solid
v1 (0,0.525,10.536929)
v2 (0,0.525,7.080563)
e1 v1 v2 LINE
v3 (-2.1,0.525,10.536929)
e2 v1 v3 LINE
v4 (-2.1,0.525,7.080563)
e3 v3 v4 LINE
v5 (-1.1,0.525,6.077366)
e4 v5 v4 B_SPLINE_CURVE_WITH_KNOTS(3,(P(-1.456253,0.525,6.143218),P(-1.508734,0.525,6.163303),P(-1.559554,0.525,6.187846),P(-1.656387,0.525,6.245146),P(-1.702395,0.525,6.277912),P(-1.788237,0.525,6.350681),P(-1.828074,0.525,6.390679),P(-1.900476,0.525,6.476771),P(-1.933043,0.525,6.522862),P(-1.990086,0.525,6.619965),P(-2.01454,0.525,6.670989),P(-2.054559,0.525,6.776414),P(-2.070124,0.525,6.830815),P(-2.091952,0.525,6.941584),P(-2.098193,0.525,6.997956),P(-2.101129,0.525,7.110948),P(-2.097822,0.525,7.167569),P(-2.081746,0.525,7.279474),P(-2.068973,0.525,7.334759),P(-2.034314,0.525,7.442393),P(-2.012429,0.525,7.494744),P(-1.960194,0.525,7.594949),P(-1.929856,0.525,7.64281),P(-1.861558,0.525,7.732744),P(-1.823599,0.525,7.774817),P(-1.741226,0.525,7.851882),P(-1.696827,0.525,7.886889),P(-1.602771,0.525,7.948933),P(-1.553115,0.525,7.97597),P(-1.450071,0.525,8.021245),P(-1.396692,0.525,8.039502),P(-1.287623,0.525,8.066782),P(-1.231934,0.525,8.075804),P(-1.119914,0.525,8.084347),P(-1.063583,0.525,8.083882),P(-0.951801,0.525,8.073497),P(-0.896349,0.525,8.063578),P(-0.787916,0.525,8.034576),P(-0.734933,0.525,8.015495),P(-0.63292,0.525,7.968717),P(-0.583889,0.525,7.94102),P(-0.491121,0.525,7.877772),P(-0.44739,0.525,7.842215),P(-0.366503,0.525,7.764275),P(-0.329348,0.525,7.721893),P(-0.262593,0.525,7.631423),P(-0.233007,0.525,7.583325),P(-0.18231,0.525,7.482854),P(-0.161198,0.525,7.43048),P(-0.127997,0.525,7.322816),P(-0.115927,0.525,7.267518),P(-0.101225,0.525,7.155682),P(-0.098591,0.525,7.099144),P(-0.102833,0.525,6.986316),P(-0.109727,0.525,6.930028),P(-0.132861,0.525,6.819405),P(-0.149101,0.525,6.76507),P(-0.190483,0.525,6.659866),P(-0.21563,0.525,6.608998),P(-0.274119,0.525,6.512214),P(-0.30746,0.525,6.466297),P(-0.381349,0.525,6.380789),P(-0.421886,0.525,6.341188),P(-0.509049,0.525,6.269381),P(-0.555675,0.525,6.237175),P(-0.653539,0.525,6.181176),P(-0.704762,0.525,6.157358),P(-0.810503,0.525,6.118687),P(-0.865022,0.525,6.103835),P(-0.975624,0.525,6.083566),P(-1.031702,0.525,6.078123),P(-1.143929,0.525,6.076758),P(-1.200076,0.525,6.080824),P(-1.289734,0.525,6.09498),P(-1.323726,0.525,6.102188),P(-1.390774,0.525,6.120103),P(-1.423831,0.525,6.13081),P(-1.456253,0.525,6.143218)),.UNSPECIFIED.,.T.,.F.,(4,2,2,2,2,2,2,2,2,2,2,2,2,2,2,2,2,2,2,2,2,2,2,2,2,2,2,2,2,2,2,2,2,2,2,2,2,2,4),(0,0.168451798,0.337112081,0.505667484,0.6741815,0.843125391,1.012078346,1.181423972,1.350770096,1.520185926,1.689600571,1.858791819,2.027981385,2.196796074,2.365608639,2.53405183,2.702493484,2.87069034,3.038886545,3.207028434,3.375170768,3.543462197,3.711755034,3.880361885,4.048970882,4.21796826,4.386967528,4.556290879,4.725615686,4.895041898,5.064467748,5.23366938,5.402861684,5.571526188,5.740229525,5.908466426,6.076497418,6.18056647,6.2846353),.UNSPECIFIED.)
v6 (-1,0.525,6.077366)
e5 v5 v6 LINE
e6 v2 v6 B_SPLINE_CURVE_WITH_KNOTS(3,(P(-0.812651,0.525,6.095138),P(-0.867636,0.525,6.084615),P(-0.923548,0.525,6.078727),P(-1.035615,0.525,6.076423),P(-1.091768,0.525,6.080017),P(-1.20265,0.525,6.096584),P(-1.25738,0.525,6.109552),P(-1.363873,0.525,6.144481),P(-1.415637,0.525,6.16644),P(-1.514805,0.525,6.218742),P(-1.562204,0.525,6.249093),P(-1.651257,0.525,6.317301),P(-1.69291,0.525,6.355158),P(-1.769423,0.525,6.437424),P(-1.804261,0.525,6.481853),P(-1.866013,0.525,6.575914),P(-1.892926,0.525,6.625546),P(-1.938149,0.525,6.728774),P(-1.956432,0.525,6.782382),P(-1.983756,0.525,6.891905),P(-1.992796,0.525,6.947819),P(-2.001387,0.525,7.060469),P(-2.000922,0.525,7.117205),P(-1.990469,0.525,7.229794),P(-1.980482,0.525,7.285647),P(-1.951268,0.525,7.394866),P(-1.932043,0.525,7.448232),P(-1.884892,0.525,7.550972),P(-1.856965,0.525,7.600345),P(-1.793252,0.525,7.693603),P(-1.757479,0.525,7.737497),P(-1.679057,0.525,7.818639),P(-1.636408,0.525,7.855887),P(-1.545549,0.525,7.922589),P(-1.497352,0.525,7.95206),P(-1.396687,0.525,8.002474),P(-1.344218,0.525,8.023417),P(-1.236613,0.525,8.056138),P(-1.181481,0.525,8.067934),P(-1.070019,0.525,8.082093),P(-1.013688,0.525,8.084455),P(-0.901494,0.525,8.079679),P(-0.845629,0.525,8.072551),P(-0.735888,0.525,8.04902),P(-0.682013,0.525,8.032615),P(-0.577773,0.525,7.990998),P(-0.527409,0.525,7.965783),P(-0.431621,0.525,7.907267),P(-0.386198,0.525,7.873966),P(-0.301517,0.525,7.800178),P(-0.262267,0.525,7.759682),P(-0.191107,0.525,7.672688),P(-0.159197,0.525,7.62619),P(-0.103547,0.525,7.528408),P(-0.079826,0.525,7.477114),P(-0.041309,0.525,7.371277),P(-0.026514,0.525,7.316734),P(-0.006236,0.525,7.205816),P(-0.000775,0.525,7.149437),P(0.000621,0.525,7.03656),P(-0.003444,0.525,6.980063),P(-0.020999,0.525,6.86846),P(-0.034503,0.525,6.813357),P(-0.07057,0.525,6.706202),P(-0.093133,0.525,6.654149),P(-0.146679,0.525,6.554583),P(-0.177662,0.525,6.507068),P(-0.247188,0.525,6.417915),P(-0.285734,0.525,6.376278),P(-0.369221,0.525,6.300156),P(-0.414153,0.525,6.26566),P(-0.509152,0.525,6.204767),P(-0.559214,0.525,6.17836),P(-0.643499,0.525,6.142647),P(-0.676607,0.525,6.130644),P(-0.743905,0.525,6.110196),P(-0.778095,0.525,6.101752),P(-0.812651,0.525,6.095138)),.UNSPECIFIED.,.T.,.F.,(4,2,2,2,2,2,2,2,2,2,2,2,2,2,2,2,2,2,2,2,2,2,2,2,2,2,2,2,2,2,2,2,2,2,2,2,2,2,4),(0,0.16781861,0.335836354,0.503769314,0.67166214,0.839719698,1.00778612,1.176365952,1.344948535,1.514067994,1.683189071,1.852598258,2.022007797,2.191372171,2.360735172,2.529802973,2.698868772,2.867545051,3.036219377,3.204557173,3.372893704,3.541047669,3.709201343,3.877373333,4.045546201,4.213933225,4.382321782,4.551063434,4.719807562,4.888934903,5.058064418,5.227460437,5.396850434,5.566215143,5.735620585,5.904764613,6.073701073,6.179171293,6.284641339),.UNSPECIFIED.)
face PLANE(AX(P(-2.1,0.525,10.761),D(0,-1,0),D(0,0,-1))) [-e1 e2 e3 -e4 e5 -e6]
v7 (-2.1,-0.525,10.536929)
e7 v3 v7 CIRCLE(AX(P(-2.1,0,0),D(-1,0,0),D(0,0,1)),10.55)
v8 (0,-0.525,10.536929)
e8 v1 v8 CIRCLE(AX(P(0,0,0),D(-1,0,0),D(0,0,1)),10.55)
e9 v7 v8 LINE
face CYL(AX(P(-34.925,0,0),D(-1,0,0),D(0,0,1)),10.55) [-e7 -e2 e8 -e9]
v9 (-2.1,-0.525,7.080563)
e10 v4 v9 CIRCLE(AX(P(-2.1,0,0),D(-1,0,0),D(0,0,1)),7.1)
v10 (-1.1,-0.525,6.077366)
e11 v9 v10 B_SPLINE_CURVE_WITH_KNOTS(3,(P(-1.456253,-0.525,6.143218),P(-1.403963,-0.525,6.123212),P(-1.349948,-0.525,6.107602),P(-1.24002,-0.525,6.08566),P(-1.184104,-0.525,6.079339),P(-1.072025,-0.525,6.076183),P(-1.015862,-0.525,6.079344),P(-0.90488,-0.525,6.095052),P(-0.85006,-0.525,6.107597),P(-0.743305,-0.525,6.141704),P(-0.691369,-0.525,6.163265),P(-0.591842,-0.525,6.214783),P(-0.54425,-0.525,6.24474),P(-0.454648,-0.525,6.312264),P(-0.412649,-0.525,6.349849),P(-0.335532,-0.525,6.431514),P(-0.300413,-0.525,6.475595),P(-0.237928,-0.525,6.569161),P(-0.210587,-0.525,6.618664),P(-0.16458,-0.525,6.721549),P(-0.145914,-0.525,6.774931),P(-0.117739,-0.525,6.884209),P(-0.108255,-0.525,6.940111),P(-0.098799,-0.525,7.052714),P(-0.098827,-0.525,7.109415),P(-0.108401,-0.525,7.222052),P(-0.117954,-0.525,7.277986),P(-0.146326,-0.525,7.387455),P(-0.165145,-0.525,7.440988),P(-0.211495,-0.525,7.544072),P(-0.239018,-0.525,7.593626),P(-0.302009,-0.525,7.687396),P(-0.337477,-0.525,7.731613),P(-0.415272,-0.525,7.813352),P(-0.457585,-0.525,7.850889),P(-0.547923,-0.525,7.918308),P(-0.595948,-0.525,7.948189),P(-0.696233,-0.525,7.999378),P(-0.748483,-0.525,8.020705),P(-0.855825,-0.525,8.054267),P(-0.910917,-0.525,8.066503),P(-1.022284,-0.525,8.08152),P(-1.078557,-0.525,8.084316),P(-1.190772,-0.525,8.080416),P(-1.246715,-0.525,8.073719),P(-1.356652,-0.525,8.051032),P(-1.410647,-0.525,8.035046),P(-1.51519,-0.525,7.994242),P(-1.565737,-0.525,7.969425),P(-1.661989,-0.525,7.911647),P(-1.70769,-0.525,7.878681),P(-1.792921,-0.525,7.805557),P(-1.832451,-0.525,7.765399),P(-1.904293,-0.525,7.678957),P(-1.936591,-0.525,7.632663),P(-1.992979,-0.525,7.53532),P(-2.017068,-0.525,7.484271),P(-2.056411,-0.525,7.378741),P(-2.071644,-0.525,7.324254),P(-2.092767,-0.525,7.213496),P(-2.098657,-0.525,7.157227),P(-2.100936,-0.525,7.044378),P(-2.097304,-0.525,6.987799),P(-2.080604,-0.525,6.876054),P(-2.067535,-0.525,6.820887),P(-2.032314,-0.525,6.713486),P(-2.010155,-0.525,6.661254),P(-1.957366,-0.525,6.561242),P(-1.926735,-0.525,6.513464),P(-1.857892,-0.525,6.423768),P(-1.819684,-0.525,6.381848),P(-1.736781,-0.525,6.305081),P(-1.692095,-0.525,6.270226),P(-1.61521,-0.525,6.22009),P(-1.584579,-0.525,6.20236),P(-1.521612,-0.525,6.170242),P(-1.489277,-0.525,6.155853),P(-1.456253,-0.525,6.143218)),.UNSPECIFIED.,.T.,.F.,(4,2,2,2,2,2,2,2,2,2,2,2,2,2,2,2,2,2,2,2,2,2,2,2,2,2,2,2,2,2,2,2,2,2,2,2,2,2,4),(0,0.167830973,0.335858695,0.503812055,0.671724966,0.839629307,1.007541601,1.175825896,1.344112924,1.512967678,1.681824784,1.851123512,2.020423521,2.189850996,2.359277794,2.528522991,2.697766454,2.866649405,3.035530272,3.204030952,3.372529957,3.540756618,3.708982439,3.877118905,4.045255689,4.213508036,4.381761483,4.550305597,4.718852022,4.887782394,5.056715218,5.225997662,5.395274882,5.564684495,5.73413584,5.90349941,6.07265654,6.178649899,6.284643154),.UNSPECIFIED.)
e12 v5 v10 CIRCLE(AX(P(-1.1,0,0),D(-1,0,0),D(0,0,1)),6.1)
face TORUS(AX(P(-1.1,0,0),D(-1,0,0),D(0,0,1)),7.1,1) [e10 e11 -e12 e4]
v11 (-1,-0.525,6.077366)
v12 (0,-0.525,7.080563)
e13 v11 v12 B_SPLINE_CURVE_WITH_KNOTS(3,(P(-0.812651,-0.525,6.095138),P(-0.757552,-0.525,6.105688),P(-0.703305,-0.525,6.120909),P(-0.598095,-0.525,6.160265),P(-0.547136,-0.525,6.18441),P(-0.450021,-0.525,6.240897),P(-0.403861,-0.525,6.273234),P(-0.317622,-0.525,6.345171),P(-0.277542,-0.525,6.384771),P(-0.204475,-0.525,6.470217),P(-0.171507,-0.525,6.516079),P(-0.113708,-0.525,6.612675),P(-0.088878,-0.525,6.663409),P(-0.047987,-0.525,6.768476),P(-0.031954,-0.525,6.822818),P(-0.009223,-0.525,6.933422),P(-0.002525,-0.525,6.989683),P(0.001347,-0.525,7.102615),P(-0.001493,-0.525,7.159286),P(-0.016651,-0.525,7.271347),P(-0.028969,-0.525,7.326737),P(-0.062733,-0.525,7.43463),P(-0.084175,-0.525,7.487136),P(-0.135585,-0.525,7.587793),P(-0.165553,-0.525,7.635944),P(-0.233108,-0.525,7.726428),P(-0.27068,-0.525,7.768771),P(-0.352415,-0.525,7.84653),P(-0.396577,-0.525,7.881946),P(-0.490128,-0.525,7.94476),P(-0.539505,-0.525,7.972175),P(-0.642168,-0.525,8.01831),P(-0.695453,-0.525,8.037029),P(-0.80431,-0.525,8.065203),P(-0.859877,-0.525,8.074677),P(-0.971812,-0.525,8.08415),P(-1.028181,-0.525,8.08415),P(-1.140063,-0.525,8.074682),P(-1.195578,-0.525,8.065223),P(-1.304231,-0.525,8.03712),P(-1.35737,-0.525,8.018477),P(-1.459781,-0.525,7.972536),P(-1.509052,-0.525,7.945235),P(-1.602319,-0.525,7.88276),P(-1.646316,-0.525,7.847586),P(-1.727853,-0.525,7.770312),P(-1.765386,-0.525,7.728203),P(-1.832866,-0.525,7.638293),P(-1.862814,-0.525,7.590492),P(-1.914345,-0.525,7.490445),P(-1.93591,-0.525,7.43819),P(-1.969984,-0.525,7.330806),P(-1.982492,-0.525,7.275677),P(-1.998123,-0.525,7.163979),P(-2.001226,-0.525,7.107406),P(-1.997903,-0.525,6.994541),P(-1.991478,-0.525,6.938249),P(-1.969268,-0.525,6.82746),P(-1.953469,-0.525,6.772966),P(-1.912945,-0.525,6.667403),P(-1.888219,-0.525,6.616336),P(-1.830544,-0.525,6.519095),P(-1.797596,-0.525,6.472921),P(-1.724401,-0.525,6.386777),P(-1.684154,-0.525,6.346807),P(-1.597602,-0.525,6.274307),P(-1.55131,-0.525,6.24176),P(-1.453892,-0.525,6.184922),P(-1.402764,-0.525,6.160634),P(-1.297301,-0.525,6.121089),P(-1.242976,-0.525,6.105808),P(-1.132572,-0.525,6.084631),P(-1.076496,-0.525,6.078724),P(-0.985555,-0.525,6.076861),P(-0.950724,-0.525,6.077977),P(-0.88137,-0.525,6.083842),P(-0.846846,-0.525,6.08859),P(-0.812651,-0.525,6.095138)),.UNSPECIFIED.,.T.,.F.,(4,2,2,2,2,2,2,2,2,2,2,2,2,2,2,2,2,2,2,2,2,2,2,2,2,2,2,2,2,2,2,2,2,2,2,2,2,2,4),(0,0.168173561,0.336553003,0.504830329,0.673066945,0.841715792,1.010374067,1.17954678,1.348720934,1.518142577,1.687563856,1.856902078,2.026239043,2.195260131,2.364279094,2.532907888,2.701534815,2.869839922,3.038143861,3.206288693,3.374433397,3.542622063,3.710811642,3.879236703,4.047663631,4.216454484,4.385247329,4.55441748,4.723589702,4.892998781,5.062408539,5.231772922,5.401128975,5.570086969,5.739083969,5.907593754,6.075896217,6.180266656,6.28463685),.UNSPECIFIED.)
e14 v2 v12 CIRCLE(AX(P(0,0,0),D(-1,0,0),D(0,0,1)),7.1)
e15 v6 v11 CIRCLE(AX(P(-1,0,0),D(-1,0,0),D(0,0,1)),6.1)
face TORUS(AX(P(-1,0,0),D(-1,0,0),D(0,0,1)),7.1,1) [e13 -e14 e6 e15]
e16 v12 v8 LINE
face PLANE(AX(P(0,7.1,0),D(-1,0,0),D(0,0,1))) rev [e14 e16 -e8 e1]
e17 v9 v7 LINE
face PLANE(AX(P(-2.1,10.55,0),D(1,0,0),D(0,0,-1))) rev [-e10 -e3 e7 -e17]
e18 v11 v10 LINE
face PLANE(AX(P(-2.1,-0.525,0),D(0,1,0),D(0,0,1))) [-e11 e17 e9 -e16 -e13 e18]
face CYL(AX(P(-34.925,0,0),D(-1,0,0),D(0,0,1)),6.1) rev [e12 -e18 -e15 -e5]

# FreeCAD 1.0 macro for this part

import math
import FreeCAD as App
import Part
import Sketcher

V = App.Vector

doc = App.newDocument("Part")
body = doc.addObject("PartDesign::Body", "Body")

# Sketch on XY plane
sketch1 = doc.addObject("Sketcher::SketchObject", "Sketch")
body.addObject(sketch1)
sketch1.AttachmentSupport = (doc.XY_Plane, [""])
sketch1.MapMode = "FlatFace"
sketch1.addGeometry([
    Part.LineSegment(V(0, 7.1, 0), V(0, 10.55, 0)),  # 0
    Part.LineSegment(V(0, 10.55, 0), V(-2.1, 10.55, 0)),  # 1
    Part.LineSegment(V(-2.1, 10.55, 0), V(-2.1, 7.1, 0)),  # 2
    Part.ArcOfCircle(Part.Circle(V(-1.1, 7.1, 0), V(0, 0, 1), 1), math.radians(-180), math.radians(-90)),  # 3
    Part.LineSegment(V(-1.1, 6.1, 0), V(-1, 6.1, 0)),  # 4
    Part.ArcOfCircle(Part.Circle(V(-1, 7.1, 0), V(0, 0, 1), 1), math.radians(-90), math.radians(0)),  # 5
], False)
sketch1.addConstraint([
    Sketcher.Constraint("Coincident", 0, 2, 1, 1),
    Sketcher.Constraint("Coincident", 1, 2, 2, 1),
    Sketcher.Constraint("Tangent", 2, 2, 3, 1),
    Sketcher.Constraint("Tangent", 3, 2, 4, 1),
    Sketcher.Constraint("Tangent", 4, 2, 5, 1),
    Sketcher.Constraint("Tangent", 5, 2, 0, 1),
    Sketcher.Constraint("Vertical", 0),
    Sketcher.Constraint("Horizontal", 1),
    Sketcher.Constraint("Vertical", 2),
    Sketcher.Constraint("Horizontal", 4),
    Sketcher.Constraint("Equal", 3, 5),
    Sketcher.Constraint("PointOnObject", 0, 2, -2),
    Sketcher.Constraint("Radius", 3, 1.0),
    Sketcher.Constraint("DistanceX", 1, 2, 1, 1, 2.1),
    Sketcher.Constraint("DistanceY", 0, 1, 0, 2, 3.45),
    Sketcher.Constraint("DistanceY", -1, 1, 3, 3, 7.1),
])
revolution = doc.addObject("PartDesign::Revolution", "Revolution")
body.addObject(revolution)
revolution.Profile = sketch1
revolution.ReferenceAxis = (sketch1, ["H_Axis"])
revolution.Angle = 360

# Sketch on YZ plane
sketch2 = doc.addObject("Sketcher::SketchObject", "Sketch001")
body.addObject(sketch2)
sketch2.AttachmentSupport = (doc.YZ_Plane, [""])
sketch2.MapMode = "FlatFace"
sketch2.addGeometry([
    Part.LineSegment(V(0.525, 10.761, 0), V(0.525, 0, 0)),
    Part.LineSegment(V(0.525, 0, 0), V(-0.525, 0, 0)),
    Part.LineSegment(V(-0.525, 0, 0), V(-0.525, 10.761, 0)),
    Part.LineSegment(V(-0.525, 10.761, 0), V(0.525, 10.761, 0)),
], False)
sketch2.addConstraint([
    Sketcher.Constraint("Coincident", 0, 2, 1, 1),
    Sketcher.Constraint("Coincident", 1, 2, 2, 1),
    Sketcher.Constraint("Coincident", 2, 2, 3, 1),
    Sketcher.Constraint("Coincident", 3, 2, 0, 1),
    Sketcher.Constraint("Vertical", 0),
    Sketcher.Constraint("Horizontal", 1),
    Sketcher.Constraint("Vertical", 2),
    Sketcher.Constraint("Horizontal", 3),
    Sketcher.Constraint("Symmetric", 0, 2, 1, 2, -1, 1),
    Sketcher.Constraint("DistanceX", 1, 2, 1, 1, 1.05),
    Sketcher.Constraint("DistanceY", 0, 2, 0, 1, 10.761),
])
pocket1 = doc.addObject("PartDesign::Pocket", "Pocket")
body.addObject(pocket1)
pocket1.Profile = sketch2
pocket1.Type = "ThroughAll"

doc.recompute()
